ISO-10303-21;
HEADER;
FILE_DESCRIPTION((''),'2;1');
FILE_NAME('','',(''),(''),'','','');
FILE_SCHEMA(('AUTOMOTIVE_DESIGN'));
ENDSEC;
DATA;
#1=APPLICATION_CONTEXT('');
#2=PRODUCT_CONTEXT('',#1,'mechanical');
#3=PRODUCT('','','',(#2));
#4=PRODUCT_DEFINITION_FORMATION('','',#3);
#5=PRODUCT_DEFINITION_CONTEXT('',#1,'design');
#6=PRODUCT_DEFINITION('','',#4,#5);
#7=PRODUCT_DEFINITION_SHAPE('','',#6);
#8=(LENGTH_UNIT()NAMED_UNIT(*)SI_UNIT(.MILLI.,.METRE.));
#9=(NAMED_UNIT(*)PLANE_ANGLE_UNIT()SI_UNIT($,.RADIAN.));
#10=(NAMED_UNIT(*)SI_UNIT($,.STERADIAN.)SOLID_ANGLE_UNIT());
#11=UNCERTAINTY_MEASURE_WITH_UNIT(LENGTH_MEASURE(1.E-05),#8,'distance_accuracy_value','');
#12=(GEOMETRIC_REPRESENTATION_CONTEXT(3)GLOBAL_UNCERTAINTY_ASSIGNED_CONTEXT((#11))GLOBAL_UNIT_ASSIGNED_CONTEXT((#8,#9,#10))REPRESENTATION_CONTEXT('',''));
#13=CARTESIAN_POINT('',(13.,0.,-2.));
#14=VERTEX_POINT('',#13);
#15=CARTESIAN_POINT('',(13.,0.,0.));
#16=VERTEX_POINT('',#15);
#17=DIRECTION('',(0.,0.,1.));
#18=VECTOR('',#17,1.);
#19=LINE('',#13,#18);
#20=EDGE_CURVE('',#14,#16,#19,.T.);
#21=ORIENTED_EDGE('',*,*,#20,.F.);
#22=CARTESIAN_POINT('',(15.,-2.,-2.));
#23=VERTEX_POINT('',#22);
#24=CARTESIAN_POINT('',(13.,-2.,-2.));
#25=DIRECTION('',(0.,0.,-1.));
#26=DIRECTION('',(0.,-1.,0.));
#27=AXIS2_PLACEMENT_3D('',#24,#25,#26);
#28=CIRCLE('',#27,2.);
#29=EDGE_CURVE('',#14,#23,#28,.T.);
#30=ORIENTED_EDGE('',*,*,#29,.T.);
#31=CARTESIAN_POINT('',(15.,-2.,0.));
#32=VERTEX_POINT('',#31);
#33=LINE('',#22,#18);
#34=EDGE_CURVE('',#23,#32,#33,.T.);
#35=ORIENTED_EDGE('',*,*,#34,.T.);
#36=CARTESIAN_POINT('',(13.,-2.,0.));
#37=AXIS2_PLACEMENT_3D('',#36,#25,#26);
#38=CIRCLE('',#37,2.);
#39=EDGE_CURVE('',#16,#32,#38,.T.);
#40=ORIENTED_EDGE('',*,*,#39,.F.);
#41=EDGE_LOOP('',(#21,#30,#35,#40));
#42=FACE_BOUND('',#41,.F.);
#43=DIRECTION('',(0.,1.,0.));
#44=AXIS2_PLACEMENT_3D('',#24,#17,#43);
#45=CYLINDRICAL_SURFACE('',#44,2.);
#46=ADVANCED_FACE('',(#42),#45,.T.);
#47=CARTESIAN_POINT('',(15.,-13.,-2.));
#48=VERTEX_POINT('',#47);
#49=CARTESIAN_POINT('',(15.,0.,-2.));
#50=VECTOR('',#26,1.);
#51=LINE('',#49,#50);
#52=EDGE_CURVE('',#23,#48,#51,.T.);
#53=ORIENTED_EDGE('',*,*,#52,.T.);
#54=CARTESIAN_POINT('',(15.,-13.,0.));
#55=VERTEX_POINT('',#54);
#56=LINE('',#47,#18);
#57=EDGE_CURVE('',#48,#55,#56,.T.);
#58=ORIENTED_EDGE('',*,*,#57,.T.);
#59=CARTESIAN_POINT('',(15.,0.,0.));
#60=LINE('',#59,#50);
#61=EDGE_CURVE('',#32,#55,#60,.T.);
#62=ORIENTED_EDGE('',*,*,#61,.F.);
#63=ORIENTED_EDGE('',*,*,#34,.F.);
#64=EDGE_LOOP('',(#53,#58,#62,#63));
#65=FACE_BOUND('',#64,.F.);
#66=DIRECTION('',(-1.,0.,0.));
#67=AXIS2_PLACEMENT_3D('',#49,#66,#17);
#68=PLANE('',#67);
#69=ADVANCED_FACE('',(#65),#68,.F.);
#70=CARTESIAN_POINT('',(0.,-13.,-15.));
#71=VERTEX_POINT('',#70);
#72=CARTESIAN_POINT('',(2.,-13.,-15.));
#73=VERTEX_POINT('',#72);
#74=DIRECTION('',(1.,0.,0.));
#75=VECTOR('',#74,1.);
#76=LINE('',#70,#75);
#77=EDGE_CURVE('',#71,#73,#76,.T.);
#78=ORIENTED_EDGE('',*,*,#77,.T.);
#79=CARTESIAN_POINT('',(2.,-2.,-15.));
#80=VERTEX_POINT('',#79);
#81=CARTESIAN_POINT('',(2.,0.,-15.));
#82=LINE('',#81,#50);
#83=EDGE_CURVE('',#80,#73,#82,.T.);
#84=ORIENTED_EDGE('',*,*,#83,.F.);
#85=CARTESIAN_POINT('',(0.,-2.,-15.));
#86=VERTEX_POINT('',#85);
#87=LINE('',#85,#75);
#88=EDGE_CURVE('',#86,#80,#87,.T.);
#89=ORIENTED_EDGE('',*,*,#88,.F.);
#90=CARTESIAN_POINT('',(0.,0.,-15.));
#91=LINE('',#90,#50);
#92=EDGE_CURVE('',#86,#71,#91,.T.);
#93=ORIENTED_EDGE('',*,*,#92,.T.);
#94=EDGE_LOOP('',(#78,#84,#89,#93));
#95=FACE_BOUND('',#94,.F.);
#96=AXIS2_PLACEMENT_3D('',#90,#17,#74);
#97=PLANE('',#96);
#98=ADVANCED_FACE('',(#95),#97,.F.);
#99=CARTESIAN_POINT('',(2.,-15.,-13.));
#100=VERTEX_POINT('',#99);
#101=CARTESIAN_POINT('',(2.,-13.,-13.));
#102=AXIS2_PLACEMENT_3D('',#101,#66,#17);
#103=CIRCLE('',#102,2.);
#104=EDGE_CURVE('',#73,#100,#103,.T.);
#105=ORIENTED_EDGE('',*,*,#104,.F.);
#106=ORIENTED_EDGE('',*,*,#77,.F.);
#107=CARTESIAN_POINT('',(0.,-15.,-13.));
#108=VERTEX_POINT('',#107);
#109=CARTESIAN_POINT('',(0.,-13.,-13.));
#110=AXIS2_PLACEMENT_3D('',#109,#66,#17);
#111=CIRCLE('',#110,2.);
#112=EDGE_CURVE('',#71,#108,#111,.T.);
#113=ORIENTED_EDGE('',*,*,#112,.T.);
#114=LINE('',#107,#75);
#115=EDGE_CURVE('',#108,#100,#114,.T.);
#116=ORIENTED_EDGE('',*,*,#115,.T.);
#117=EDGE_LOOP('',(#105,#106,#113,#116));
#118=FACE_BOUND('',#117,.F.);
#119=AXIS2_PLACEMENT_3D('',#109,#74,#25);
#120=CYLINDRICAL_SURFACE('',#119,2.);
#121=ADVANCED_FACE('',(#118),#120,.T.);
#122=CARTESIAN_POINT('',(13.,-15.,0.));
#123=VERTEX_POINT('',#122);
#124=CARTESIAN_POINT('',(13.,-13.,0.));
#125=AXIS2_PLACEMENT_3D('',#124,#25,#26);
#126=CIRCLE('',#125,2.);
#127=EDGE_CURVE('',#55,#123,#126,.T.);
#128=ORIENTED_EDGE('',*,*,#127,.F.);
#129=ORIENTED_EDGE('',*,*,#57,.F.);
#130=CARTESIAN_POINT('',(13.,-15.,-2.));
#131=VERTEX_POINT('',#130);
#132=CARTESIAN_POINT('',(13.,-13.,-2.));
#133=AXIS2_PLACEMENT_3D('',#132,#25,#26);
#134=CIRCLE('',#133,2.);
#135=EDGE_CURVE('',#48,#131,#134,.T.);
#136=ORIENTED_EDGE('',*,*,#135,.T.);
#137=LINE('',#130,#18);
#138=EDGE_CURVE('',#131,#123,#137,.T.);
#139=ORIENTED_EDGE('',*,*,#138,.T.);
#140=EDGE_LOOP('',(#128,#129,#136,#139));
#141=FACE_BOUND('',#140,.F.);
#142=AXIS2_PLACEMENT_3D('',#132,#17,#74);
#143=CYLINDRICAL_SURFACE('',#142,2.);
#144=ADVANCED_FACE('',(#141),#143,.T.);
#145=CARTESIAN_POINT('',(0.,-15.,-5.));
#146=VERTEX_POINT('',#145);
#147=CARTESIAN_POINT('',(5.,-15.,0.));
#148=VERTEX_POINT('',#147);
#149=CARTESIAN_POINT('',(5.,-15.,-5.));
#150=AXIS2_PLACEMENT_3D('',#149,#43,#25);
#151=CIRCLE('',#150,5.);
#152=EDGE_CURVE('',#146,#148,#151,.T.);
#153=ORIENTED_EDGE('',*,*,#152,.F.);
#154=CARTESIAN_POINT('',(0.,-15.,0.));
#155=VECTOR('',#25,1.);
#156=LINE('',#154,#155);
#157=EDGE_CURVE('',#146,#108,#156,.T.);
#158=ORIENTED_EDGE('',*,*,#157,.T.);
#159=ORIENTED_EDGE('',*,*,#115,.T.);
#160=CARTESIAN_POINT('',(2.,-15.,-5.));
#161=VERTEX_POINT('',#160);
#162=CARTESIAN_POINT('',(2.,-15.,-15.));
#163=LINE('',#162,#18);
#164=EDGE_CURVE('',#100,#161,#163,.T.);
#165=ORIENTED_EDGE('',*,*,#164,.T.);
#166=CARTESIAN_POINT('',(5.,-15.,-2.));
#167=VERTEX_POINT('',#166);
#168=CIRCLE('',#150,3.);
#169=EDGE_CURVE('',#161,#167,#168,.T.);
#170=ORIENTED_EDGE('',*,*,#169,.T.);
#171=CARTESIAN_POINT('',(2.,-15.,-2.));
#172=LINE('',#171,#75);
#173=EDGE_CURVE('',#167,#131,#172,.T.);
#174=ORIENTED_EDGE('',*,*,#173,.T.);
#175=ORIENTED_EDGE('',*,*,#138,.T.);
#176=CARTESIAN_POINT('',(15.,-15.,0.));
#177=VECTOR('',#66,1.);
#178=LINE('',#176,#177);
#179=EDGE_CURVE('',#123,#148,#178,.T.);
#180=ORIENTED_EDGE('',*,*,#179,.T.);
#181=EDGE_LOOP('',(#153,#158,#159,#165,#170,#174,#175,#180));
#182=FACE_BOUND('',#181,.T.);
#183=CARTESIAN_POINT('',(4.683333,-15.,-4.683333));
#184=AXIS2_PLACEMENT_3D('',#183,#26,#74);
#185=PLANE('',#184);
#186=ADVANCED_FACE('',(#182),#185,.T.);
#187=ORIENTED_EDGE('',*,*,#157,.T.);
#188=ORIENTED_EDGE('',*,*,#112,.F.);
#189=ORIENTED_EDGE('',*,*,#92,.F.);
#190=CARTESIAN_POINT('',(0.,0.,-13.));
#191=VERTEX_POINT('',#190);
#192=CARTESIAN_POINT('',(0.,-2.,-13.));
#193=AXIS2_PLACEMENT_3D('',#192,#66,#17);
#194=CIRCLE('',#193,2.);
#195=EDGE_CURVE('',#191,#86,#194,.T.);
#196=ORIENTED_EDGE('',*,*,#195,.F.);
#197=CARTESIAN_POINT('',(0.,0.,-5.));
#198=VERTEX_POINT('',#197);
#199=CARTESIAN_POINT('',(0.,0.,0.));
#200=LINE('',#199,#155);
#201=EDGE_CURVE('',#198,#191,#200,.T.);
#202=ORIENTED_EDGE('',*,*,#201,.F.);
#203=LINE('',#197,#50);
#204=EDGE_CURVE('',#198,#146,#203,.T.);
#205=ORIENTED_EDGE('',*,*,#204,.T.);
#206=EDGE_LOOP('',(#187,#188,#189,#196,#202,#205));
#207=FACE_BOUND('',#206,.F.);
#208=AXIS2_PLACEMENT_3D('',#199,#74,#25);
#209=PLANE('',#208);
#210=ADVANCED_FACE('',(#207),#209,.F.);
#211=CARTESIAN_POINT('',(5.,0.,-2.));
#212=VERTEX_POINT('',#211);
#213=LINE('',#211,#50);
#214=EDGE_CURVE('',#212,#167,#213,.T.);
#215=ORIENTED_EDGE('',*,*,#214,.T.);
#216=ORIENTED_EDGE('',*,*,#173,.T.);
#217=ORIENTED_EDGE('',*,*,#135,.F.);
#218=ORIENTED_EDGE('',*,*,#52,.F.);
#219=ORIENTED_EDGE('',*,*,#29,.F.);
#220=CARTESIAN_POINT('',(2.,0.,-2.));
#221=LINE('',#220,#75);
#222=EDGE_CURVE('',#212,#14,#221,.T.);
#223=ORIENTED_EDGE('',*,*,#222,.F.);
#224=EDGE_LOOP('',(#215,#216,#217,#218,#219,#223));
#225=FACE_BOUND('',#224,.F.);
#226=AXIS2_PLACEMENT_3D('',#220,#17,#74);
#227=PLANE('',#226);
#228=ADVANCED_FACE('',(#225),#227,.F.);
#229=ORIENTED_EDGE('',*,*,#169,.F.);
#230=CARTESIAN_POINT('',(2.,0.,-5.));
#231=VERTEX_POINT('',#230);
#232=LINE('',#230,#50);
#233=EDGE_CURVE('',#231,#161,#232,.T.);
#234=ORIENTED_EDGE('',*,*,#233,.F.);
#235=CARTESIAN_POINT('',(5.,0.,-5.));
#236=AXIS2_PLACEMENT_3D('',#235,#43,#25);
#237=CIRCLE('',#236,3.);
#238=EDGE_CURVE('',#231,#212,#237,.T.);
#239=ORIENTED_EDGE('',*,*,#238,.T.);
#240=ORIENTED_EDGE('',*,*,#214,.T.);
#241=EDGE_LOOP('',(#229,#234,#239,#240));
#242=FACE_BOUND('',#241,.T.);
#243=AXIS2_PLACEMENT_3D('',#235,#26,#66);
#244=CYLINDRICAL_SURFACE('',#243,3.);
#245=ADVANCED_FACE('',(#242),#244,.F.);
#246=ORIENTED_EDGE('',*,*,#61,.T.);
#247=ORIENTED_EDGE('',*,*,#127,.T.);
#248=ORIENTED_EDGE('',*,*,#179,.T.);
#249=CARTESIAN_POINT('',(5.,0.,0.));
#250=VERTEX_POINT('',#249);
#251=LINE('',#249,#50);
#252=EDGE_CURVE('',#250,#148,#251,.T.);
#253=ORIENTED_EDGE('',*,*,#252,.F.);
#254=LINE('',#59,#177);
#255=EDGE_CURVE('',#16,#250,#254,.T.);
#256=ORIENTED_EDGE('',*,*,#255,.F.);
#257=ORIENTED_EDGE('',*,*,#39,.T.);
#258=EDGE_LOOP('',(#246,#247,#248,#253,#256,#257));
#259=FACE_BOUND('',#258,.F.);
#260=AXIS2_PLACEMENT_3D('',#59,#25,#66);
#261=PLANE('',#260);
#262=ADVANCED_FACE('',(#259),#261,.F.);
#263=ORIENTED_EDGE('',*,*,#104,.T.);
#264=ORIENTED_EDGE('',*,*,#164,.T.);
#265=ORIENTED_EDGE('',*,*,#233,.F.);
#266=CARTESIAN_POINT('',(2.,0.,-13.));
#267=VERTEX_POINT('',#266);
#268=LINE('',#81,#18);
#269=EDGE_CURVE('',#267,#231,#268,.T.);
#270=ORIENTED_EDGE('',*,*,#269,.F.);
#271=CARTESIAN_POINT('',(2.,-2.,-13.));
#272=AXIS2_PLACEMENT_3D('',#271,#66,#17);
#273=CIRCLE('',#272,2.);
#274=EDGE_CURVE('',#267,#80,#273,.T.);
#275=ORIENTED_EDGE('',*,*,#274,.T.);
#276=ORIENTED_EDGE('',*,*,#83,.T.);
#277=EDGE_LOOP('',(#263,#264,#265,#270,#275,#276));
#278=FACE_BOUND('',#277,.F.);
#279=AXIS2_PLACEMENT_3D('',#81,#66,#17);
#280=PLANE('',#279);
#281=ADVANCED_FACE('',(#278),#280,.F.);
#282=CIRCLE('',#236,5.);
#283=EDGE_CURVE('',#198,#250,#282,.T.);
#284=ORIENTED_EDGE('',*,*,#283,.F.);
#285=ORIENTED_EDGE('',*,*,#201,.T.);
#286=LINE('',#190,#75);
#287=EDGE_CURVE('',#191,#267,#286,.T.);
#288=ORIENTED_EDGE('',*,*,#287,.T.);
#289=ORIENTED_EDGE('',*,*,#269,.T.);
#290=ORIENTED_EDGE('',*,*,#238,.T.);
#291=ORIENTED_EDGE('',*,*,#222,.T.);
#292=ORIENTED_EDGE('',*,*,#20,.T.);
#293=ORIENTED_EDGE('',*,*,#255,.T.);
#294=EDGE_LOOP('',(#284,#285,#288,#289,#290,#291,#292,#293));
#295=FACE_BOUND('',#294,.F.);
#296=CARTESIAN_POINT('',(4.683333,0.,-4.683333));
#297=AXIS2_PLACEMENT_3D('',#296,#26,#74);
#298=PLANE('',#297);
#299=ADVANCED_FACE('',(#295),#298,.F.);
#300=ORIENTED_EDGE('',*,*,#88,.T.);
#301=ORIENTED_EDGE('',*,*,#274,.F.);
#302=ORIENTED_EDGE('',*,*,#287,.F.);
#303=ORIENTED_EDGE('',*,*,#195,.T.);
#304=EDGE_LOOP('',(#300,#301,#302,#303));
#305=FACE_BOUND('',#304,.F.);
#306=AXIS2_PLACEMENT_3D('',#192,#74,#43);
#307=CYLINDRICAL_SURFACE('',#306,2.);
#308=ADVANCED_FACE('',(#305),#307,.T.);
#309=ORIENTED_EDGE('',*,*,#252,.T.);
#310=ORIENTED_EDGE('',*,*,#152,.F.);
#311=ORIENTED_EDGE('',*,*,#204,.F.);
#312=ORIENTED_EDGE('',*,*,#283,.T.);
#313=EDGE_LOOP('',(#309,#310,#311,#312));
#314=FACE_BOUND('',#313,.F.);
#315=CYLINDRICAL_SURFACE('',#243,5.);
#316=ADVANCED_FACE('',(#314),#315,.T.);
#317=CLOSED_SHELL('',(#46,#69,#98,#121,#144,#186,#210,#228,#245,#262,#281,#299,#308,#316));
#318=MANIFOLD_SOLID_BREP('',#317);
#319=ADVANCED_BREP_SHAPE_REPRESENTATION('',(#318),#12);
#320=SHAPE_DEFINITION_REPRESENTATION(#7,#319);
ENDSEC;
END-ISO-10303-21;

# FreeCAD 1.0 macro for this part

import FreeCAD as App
import Part
import Sketcher
from FreeCAD import Vector


def edges_at(feature, points):
    """Names of the edges that pass closest to the given points."""
    edges = feature.Shape.Edges
    near = lambda p: min(range(len(edges)), key=lambda i: edges[i].distToShape(Part.Vertex(*p))[0])
    return sorted({f"Edge{near(p) + 1}" for p in points})


def add_polygon(sketch, points):
    """Adds a closed chain of lines whose ends are joined by coincident constraints."""
    first, n = sketch.GeometryCount, len(points)
    for a, b in zip(points, points[1:] + points[:1]):
        sketch.addGeometry(Part.LineSegment(App.Vector(*a, 0), App.Vector(*b, 0)), False)
    for i in range(n):
        sketch.addConstraint(Sketcher.Constraint("Coincident", first + i, 2, first + (i + 1) % n, 1))

doc = App.newDocument("Part")
body = doc.addObject("PartDesign::Body", "Body")

# Sketch on XZ plane
sketch1 = doc.addObject("Sketcher::SketchObject", "Sketch")
body.addObject(sketch1)
sketch1.AttachmentSupport = (doc.XZ_Plane, [""])
sketch1.MapMode = "FlatFace"
add_polygon(sketch1, [(15, 0), (0, 0), (0, -15), (2, -15), (2, -2), (15, -2)])  # lines 0-5
sketch1.addConstraint(Sketcher.Constraint("Horizontal", 0))
sketch1.addConstraint(Sketcher.Constraint("Vertical", 1))
sketch1.addConstraint(Sketcher.Constraint("Horizontal", 2))
sketch1.addConstraint(Sketcher.Constraint("Vertical", 3))
sketch1.addConstraint(Sketcher.Constraint("Horizontal", 4))
sketch1.addConstraint(Sketcher.Constraint("Vertical", 5))
sketch1.addConstraint(Sketcher.Constraint("Coincident", 0, 2, -1, 1))
sketch1.addConstraint(Sketcher.Constraint("Equal", 0, 1))
sketch1.addConstraint(Sketcher.Constraint("Equal", 4, 3))
sketch1.addConstraint(Sketcher.Constraint("DistanceX", 0, 2, 0, 1, 15.0))
sketch1.addConstraint(Sketcher.Constraint("DistanceX", 2, 1, 2, 2, 2.0))
pad1 = doc.addObject("PartDesign::Pad", "Pad")
body.addObject(pad1)
pad1.Profile = sketch1
pad1.Length = 15
doc.recompute()

fillet = doc.addObject("PartDesign::Fillet", "Fillet")
body.addObject(fillet)
fillet.Base = (pad1, edges_at(pad1, [(2, -7.5, -2)]))
fillet.Radius = 3
doc.recompute()

fillet2 = doc.addObject("PartDesign::Fillet", "Fillet001")
body.addObject(fillet2)
fillet2.Base = (fillet, edges_at(fillet, [(0, -7.5, 0)]))
fillet2.Radius = 5
doc.recompute()

fillet3 = doc.addObject("PartDesign::Fillet", "Fillet002")
body.addObject(fillet3)
fillet3.Base = (fillet2, edges_at(fillet2, [
    (15, -15, -1),
    (15, 0, -1),
    (1, -15, -15),
    (1, 0, -15),
]))
fillet3.Radius = 2

doc.recompute()
